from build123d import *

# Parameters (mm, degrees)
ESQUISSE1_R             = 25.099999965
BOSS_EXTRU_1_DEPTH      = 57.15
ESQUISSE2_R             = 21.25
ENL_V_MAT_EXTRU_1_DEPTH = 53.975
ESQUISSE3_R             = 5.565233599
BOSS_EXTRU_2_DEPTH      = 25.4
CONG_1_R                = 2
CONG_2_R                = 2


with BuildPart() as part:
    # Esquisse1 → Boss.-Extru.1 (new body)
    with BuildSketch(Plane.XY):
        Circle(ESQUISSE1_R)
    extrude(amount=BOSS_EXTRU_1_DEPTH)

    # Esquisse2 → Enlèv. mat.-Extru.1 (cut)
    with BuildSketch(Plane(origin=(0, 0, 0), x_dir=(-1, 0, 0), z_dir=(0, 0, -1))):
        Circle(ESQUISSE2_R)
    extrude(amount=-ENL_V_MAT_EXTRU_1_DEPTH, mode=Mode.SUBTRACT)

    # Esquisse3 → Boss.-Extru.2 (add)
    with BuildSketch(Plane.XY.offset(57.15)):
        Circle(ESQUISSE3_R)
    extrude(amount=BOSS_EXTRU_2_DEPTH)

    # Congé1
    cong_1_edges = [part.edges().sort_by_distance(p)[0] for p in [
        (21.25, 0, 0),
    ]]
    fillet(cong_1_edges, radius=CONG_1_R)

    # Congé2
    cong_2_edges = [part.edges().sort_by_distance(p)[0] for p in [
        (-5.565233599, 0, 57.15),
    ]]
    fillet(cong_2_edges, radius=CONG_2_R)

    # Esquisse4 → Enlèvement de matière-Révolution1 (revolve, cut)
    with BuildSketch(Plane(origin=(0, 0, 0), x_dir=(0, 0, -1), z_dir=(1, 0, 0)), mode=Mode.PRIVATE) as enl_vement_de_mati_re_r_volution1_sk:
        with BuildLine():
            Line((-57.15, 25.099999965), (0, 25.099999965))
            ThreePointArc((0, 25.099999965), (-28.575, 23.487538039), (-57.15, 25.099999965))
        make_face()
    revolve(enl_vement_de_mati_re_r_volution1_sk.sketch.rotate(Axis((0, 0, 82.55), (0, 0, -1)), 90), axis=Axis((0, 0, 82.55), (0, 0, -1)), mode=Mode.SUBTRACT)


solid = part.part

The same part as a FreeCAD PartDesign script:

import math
import FreeCAD as App
import Part
import Sketcher

V = App.Vector
Q = App.Units.Quantity


def edges_at(feature, points):
    """Names of the edges that pass closest to the given points."""
    edges = feature.Shape.Edges
    near = lambda p: min(range(len(edges)), key=lambda i: edges[i].distToShape(Part.Vertex(*p))[0])
    return sorted({f"Edge{near(p) + 1}" for p in points})

doc = App.newDocument("Part")
body = doc.addObject("PartDesign::Body", "Body")

# Sketch on XY plane
sketch1 = body.newObject("Sketcher::SketchObject", "Sketch")
sketch1.AttachmentSupport = (doc.getObject("XY_Plane"), [""])
sketch1.MapMode = "FlatFace"
sketch1.addGeometry(Part.Circle(V(0, 0, 0), V(0, 0, 1), 25.1), False)
sketch1.addConstraint([
    Sketcher.Constraint("Coincident", 0, 3, -1, 1),
    Sketcher.Constraint("Diameter", 0, 50.2),
])
pad1 = body.newObject("PartDesign::Pad", "Pad")
pad1.Profile = sketch1
pad1.Length = Q("2.25 in")

# Sketch on XY plane
sketch2 = body.newObject("Sketcher::SketchObject", "Sketch001")
sketch2.AttachmentSupport = (doc.getObject("XY_Plane"), [""])
sketch2.MapMode = "FlatFace"
sketch2.addGeometry(Part.Circle(V(0, 0, 0), V(0, 0, 1), 21.25), False)
sketch2.addConstraint([
    Sketcher.Constraint("Coincident", 0, 3, -1, 1),
    Sketcher.Constraint("Diameter", 0, 42.5),
])
pocket1 = body.newObject("PartDesign::Pocket", "Pocket")
pocket1.Profile = sketch2
pocket1.Length = Q("2.125 in")
pocket1.Reversed = True

# Sketch on XY plane
sketch3 = body.newObject("Sketcher::SketchObject", "Sketch002")
sketch3.AttachmentSupport = (doc.getObject("XY_Plane"), [""])
sketch3.MapMode = "FlatFace"
sketch3.AttachmentOffset = App.Placement(V(0, 0, 2.25 * 25.4), App.Rotation())
sketch3.addGeometry(Part.Circle(V(0, 0, 0), V(0, 0, 1), 5.565234), False)
sketch3.addConstraint([
    Sketcher.Constraint("Coincident", 0, 3, -1, 1),
    Sketcher.Constraint("Diameter", 0, 11.130467),
])
pad2 = body.newObject("PartDesign::Pad", "Pad001")
pad2.Profile = sketch3
pad2.Length = Q("1 in")
doc.recompute()

fillet = body.newObject("PartDesign::Fillet", "Fillet")
fillet.Base = (pad2, edges_at(pad2, [(21.25, 0, 0)]))
fillet.Radius = 2
doc.recompute()

fillet2 = body.newObject("PartDesign::Fillet", "Fillet001")
fillet2.Base = (fillet, edges_at(fillet, [(-5.565, 0, 57.15)]))
fillet2.Radius = 2

# Sketch on YZ plane
sketch4 = body.newObject("Sketcher::SketchObject", "Sketch003")
sketch4.AttachmentSupport = (doc.getObject("YZ_Plane"), [""])
sketch4.MapMode = "FlatFace"
sketch4.addGeometry([
    Part.LineSegment(V(25.1, 0, 0), V(25.1, 57.15, 0)),
    Part.ArcOfCircle(Part.Circle(V(277.487538, 28.575, 0), V(0, 0, 1), 254), math.radians(173.54055), math.radians(186.45945)),
], False)
sketch4.addConstraint([
    Sketcher.Constraint("Coincident", 0, 1, 1, 2),
    Sketcher.Constraint("Coincident", 1, 1, 0, 2),
    Sketcher.Constraint("Vertical", 0),
    Sketcher.Constraint("PointOnObject", 0, 1, -1),
    Sketcher.Constraint("Radius", 1, Q("10 in")),
    Sketcher.Constraint("DistanceY", 0, 1, 0, 2, Q("2.25 in")),
    Sketcher.Constraint("DistanceX", -1, 1, 0, 1, 25.1),
])
groove = body.newObject("PartDesign::Groove", "Groove")
groove.Profile = sketch4
groove.ReferenceAxis = (sketch4, ["V_Axis"])
groove.Angle = 360

doc.recompute()
